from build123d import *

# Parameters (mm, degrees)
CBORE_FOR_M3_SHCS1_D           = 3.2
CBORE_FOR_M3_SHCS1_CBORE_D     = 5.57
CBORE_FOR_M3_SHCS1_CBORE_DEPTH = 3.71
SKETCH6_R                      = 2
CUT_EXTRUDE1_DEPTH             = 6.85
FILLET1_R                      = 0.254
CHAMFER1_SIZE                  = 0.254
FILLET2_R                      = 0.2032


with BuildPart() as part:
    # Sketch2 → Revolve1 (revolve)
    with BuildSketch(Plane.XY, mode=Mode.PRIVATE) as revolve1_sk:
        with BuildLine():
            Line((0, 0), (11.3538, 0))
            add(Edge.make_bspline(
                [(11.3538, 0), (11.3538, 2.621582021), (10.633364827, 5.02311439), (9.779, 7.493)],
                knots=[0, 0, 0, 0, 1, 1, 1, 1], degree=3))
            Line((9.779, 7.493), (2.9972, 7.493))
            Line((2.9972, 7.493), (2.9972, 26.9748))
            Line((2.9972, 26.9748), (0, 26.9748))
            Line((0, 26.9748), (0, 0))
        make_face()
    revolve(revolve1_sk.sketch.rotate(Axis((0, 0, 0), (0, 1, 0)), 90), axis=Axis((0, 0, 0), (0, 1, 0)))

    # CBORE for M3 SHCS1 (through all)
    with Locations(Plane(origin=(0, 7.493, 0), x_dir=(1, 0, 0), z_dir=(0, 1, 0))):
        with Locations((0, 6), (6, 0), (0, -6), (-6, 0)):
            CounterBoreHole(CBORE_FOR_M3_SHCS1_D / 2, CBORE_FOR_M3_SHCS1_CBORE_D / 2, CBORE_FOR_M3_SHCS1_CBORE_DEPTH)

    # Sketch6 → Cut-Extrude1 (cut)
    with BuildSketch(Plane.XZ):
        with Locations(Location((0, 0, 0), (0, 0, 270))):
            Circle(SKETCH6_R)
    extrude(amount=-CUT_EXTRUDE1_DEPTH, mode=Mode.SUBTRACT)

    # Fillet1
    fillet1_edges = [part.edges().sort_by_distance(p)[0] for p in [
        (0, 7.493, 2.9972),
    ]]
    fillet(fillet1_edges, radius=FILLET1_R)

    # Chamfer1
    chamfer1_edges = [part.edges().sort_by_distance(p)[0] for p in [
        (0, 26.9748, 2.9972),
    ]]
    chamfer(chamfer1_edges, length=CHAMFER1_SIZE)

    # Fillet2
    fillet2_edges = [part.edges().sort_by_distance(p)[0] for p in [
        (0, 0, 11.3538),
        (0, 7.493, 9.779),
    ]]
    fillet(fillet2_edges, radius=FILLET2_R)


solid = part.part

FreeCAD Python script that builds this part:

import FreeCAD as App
import Part
import Sketcher
from FreeCAD import Vector
Q = App.Units.Quantity


def edges_at(feature, points):
    """Names of the edges that pass closest to the given points."""
    edges = feature.Shape.Edges
    near = lambda p: min(range(len(edges)), key=lambda i: edges[i].distToShape(Part.Vertex(*p))[0])
    return sorted({f"Edge{near(p) + 1}" for p in points})

doc = App.newDocument("Part")
body = doc.addObject("PartDesign::Body", "Body")

# Sketch on XY plane
sketch1 = body.newObject("Sketcher::SketchObject", "Sketch")
sketch1.AttachmentSupport = (doc.getObject("XY_Plane"), [""])
sketch1.MapMode = "FlatFace"
sketch1.addGeometry([
    Part.LineSegment(Vector(0, 0, 0), Vector(11.3538, 0, 0)),  # 0
    Part.BSplineCurve([Vector(11.3538, 0, 0), Vector(11.3538, 2.621582, 0), Vector(10.633365, 5.023114, 0), Vector(9.779, 7.493, 0)], [4, 4], [0, 1], False, 3, [1, 1, 1, 1], False),  # 1
    Part.LineSegment(Vector(9.779, 7.493, 0), Vector(2.9972, 7.493, 0)),  # 2
    Part.LineSegment(Vector(2.9972, 7.493, 0), Vector(2.9972, 26.9748, 0)),  # 3
    Part.LineSegment(Vector(2.9972, 26.9748, 0), Vector(0, 26.9748, 0)),  # 4
    Part.LineSegment(Vector(0, 26.9748, 0), Vector(0, 0, 0)),  # 5
], False)
sketch1.addConstraint([
    Sketcher.Constraint("Block", 1),
    Sketcher.Constraint("Coincident", 0, 2, 1, 1),
    Sketcher.Constraint("Coincident", 1, 2, 2, 1),
    Sketcher.Constraint("Coincident", 2, 2, 3, 1),
    Sketcher.Constraint("Coincident", 3, 2, 4, 1),
    Sketcher.Constraint("Coincident", 4, 2, 5, 1),
    Sketcher.Constraint("Coincident", 5, 2, 0, 1),
    Sketcher.Constraint("Horizontal", 0),
    Sketcher.Constraint("Horizontal", 2),
    Sketcher.Constraint("Vertical", 3),
    Sketcher.Constraint("Horizontal", 4),
    Sketcher.Constraint("Vertical", 5),
    Sketcher.Constraint("PointOnObject", 4, 2, -2),
    Sketcher.Constraint("DistanceX", 2, 2, 2, 1, Q("0.267 in")),
    Sketcher.Constraint("DistanceY", 3, 1, 3, 2, Q("0.767 in")),
])
revolution = body.newObject("PartDesign::Revolution", "Revolution")
revolution.Profile = sketch1
revolution.ReferenceAxis = (sketch1, ["V_Axis"])
revolution.Angle = 360

# Sketch on XZ plane
sketch2 = body.newObject("Sketcher::SketchObject", "Sketch001")
sketch2.AttachmentSupport = (doc.getObject("XZ_Plane"), [""])
sketch2.MapMode = "FlatFace"
sketch2.AttachmentOffset = App.Placement(Vector(0, 0, -0.295 * 25.4), App.Rotation())
sketch2.addGeometry([
    Part.Circle(Vector(0, -6, 0), Vector(0, 0, 1), 1.6),
    Part.Circle(Vector(6, 0, 0), Vector(0, 0, 1), 1.6),
    Part.Circle(Vector(0, 6, 0), Vector(0, 0, 1), 1.6),
    Part.Circle(Vector(-6, 0, 0), Vector(0, 0, 1), 1.6),
], False)
sketch2.addConstraint([
    Sketcher.Constraint("Equal", 0, 1),
    Sketcher.Constraint("Equal", 1, 2),
    Sketcher.Constraint("Equal", 2, 3),
    Sketcher.Constraint("Symmetric", 0, 3, 2, 3, -1, 1),
    Sketcher.Constraint("Symmetric", 1, 3, 3, 3, -1, 1),
    Sketcher.Constraint("PointOnObject", 0, 3, -2),
    Sketcher.Constraint("PointOnObject", 1, 3, -1),
    Sketcher.Constraint("Diameter", 0, Q("3.2 mm")),
    Sketcher.Constraint("DistanceY", 0, 3, -1, 1, Q("6 mm")),
    Sketcher.Constraint("DistanceX", -1, 1, 1, 3, Q("6 mm")),
])
doc.recompute()
hole = body.newObject("PartDesign::Hole", "Hole")
hole.Profile = sketch2
hole.ThreadType = "None"
hole.Diameter = 3.2
hole.DepthType = "ThroughAll"
hole.HoleCutType = "Counterbore"
hole.HoleCutDiameter = 5.57
hole.HoleCutDepth = 3.71
hole.Reversed = True

# Sketch on XZ plane
sketch3 = body.newObject("Sketcher::SketchObject", "Sketch002")
sketch3.AttachmentSupport = (doc.getObject("XZ_Plane"), [""])
sketch3.MapMode = "FlatFace"
sketch3.addGeometry(Part.Circle(Vector(0, 0, 0), Vector(0, 0, 1), 2), False)
sketch3.addConstraint([
    Sketcher.Constraint("Coincident", 0, 3, -1, 1),
    Sketcher.Constraint("Diameter", 0, Q("4 mm")),
])
pocket1 = body.newObject("PartDesign::Pocket", "Pocket")
pocket1.Profile = sketch3
pocket1.Length = 6.85
doc.recompute()

fillet = body.newObject("PartDesign::Fillet", "Fillet")
fillet.Base = (pocket1, edges_at(pocket1, [(0, 7.493, 2.997)]))
fillet.Radius = Q("0.01 in")
doc.recompute()

chamfer = body.newObject("PartDesign::Chamfer", "Chamfer")
chamfer.Base = (fillet, edges_at(fillet, [(0, 26.975, 2.997)]))
chamfer.Size = Q("0.01 in")
doc.recompute()

fillet2 = body.newObject("PartDesign::Fillet", "Fillet001")
fillet2.Base = (chamfer, edges_at(chamfer, [(0, 0, 11.354), (0, 7.493, 9.779)]))
fillet2.Radius = Q("0.008 in")

doc.recompute()
